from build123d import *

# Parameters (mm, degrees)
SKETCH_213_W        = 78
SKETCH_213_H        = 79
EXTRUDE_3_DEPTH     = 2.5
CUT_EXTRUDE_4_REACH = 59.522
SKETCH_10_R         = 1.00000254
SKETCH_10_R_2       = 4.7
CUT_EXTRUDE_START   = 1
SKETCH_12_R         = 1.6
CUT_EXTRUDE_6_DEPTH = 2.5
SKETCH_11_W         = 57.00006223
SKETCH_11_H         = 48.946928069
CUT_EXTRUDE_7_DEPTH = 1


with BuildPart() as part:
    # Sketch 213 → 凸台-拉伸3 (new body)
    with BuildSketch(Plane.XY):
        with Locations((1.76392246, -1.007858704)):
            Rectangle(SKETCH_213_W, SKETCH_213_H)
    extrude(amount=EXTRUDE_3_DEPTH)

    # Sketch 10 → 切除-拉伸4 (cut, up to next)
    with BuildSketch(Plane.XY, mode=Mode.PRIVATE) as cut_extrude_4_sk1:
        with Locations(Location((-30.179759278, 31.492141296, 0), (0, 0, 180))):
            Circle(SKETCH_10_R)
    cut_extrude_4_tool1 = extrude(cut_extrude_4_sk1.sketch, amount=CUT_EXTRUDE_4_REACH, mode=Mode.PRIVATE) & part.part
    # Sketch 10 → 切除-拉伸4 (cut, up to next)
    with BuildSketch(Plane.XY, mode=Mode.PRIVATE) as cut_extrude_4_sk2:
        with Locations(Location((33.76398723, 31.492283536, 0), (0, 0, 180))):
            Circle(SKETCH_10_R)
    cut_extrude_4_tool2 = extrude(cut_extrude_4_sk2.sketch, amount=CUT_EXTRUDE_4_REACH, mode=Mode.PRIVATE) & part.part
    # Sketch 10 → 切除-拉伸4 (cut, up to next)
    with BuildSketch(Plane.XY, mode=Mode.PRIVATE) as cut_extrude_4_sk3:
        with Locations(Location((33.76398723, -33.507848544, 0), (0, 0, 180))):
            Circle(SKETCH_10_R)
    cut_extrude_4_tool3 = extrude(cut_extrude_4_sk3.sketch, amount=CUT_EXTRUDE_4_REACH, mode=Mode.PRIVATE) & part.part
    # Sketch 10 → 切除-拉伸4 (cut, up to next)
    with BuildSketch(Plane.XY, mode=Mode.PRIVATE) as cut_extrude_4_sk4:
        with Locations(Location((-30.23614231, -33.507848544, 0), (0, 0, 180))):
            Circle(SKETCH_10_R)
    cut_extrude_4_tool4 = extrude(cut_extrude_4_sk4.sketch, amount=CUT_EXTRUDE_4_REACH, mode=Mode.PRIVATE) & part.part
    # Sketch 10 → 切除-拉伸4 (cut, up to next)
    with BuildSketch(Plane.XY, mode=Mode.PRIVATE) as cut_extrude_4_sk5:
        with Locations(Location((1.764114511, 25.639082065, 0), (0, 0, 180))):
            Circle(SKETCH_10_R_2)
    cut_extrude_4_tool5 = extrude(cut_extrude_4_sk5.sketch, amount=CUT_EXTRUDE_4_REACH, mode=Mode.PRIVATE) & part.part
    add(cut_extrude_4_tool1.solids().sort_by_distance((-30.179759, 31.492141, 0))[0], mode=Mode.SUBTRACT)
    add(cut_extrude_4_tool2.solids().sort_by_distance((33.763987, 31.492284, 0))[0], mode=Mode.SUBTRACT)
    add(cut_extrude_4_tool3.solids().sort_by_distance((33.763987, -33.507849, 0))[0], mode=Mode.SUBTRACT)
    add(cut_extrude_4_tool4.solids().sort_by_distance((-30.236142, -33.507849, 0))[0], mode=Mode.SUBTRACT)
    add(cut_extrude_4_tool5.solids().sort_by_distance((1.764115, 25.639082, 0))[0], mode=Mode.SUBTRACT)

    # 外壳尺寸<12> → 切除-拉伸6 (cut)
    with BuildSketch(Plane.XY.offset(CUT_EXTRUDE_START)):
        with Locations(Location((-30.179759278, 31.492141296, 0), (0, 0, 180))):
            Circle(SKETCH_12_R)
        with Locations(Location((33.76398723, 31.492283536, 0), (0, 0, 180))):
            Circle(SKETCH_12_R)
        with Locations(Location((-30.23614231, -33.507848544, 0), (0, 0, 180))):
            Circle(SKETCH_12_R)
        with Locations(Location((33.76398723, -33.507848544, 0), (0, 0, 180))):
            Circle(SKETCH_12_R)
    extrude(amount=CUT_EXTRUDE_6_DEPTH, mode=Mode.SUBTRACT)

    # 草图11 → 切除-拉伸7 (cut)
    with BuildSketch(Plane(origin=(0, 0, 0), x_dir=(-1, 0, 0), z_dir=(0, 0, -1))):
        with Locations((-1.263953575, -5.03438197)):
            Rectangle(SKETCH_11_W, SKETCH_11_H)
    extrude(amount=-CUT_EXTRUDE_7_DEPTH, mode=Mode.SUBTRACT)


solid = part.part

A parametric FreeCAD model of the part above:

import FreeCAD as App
import Part
import Sketcher
Q = App.Units.Quantity

doc = App.newDocument("Part")
params = doc.addObject("Spreadsheet::Sheet", "Params")
for row, (alias, value) in enumerate([
    ("sketch1_width", "78 mm"),
    ("sketch1_height", "79 mm"),
    ("pad1_length", "2.5 mm"),
    ("sketch6_diameter", "9.4 mm"),
    ("sketch7_diameter", "3.2 mm"),
    ("pocket6_length", "2.5 mm"),
    ("pocket7_length", "1 mm"),
], start=1):
    params.set(f"A{row}", alias)
    params.set(f"B{row}", "=" + value)
    params.setAlias(f"B{row}", alias)

body = doc.addObject("PartDesign::Body", "Body")

# Sketch on XY plane
sketch1 = body.newObject("Sketcher::SketchObject", "Sketch")
sketch1.AttachmentSupport = (doc.getObject("XY_Plane"), [""])
sketch1.MapMode = "FlatFace"
sketch1.addGeometry([
    Part.LineSegment(App.Vector(-37, 38, 0), App.Vector(-37, -41, 0)),
    Part.LineSegment(App.Vector(-37, -41, 0), App.Vector(41, -41, 0)),
    Part.LineSegment(App.Vector(41, -41, 0), App.Vector(41, 38, 0)),
    Part.LineSegment(App.Vector(41, 38, 0), App.Vector(-37, 38, 0)),
], False)
sketch1.addConstraint([
    Sketcher.Constraint("Coincident", 0, 2, 1, 1),
    Sketcher.Constraint("Coincident", 1, 2, 2, 1),
    Sketcher.Constraint("Coincident", 2, 2, 3, 1),
    Sketcher.Constraint("Coincident", 3, 2, 0, 1),
    Sketcher.Constraint("Vertical", 0),
    Sketcher.Constraint("Horizontal", 1),
    Sketcher.Constraint("Vertical", 2),
    Sketcher.Constraint("Horizontal", 3),
    Sketcher.Constraint("DistanceX", 1, 1, 1, 2, Q("78 mm")),
    Sketcher.Constraint("DistanceY", 0, 2, 0, 1, Q("79 mm")),
    Sketcher.Constraint("DistanceY", 0, 2, -1, 1, Q("40.507859 mm")),
    Sketcher.Constraint("DistanceX", 0, 2, -1, 1, Q("37.236078 mm")),
])
sketch1.setExpression("Constraints[8]", "Params.sketch1_width")
sketch1.setExpression("Constraints[9]", "Params.sketch1_height")
pad1 = body.newObject("PartDesign::Pad", "Pad")
pad1.Profile = sketch1
pad1.setExpression("Length", "Params.pad1_length")

# Sketch on XY plane
sketch2 = body.newObject("Sketcher::SketchObject", "Sketch001")
sketch2.AttachmentSupport = (doc.getObject("XY_Plane"), [""])
sketch2.MapMode = "FlatFace"
sketch2.addGeometry(Part.Circle(App.Vector(-30.2, 31.5, 0), App.Vector(0, 0, 1), 1), False)
sketch2.addConstraint([
    Sketcher.Constraint("Diameter", 0, Q("2.000005 mm")),
    Sketcher.Constraint("DistanceX", 0, 3, -1, 1, Q("30.179759 mm")),
    Sketcher.Constraint("DistanceY", -1, 1, 0, 3, Q("31.492141 mm")),
])
pocket1 = body.newObject("PartDesign::Pocket", "Pocket")
pocket1.Profile = sketch2
pocket1.Type = "UpToFirst"
pocket1.Reversed = True

# Sketch on XY plane
sketch3 = body.newObject("Sketcher::SketchObject", "Sketch002")
sketch3.AttachmentSupport = (doc.getObject("XY_Plane"), [""])
sketch3.MapMode = "FlatFace"
sketch3.addGeometry(Part.Circle(App.Vector(33.8, 31.5, 0), App.Vector(0, 0, 1), 1), False)
sketch3.addConstraint([
    Sketcher.Constraint("Diameter", 0, Q("2.000005 mm")),
    Sketcher.Constraint("DistanceX", -1, 1, 0, 3, Q("33.763987 mm")),
    Sketcher.Constraint("DistanceY", -1, 1, 0, 3, Q("31.492284 mm")),
])
pocket2 = body.newObject("PartDesign::Pocket", "Pocket001")
pocket2.Profile = sketch3
pocket2.Type = "UpToFirst"
pocket2.Reversed = True

# Sketch on XY plane
sketch4 = body.newObject("Sketcher::SketchObject", "Sketch003")
sketch4.AttachmentSupport = (doc.getObject("XY_Plane"), [""])
sketch4.MapMode = "FlatFace"
sketch4.addGeometry(Part.Circle(App.Vector(33.8, -33.5, 0), App.Vector(0, 0, 1), 1), False)
sketch4.addConstraint([
    Sketcher.Constraint("Diameter", 0, Q("2.000005 mm")),
    Sketcher.Constraint("DistanceY", 0, 3, -1, 1, Q("33.507849 mm")),
    Sketcher.Constraint("DistanceX", -1, 1, 0, 3, Q("33.763987 mm")),
])
pocket3 = body.newObject("PartDesign::Pocket", "Pocket002")
pocket3.Profile = sketch4
pocket3.Type = "UpToFirst"
pocket3.Reversed = True

# Sketch on XY plane
sketch5 = body.newObject("Sketcher::SketchObject", "Sketch004")
sketch5.AttachmentSupport = (doc.getObject("XY_Plane"), [""])
sketch5.MapMode = "FlatFace"
sketch5.addGeometry(Part.Circle(App.Vector(-30.2, -33.5, 0), App.Vector(0, 0, 1), 1), False)
sketch5.addConstraint([
    Sketcher.Constraint("Diameter", 0, Q("2.000005 mm")),
    Sketcher.Constraint("DistanceY", 0, 3, -1, 1, Q("33.507849 mm")),
    Sketcher.Constraint("DistanceX", 0, 3, -1, 1, Q("30.236142 mm")),
])
pocket4 = body.newObject("PartDesign::Pocket", "Pocket003")
pocket4.Profile = sketch5
pocket4.Type = "UpToFirst"
pocket4.Reversed = True

# Sketch on XY plane
sketch6 = body.newObject("Sketcher::SketchObject", "Sketch005")
sketch6.AttachmentSupport = (doc.getObject("XY_Plane"), [""])
sketch6.MapMode = "FlatFace"
sketch6.addGeometry(Part.Circle(App.Vector(1.8, 25.6, 0), App.Vector(0, 0, 1), 4.7), False)
sketch6.addConstraint([
    Sketcher.Constraint("Diameter", 0, Q("9.4 mm")),
    Sketcher.Constraint("DistanceX", -1, 1, 0, 3, Q("1.764115 mm")),
    Sketcher.Constraint("DistanceY", -1, 1, 0, 3, Q("25.639082 mm")),
])
sketch6.setExpression("Constraints[0]", "Params.sketch6_diameter")
pocket5 = body.newObject("PartDesign::Pocket", "Pocket004")
pocket5.Profile = sketch6
pocket5.Type = "UpToFirst"
pocket5.Reversed = True

# Sketch on XY plane
sketch7 = body.newObject("Sketcher::SketchObject", "Sketch006")
sketch7.AttachmentSupport = (doc.getObject("XY_Plane"), [""])
sketch7.MapMode = "FlatFace"
sketch7.AttachmentOffset = App.Placement(App.Vector(0, 0, 1), App.Rotation())
sketch7.addGeometry([
    Part.Circle(App.Vector(-30.2, 31.5, 0), App.Vector(0, 0, 1), 1.6),
    Part.Circle(App.Vector(33.8, 31.5, 0), App.Vector(0, 0, 1), 1.6),
    Part.Circle(App.Vector(-30.2, -33.5, 0), App.Vector(0, 0, 1), 1.6),
    Part.Circle(App.Vector(33.8, -33.5, 0), App.Vector(0, 0, 1), 1.6),
], False)
sketch7.addConstraint([
    Sketcher.Constraint("Equal", 0, 1),
    Sketcher.Constraint("Equal", 1, 2),
    Sketcher.Constraint("Equal", 2, 3),
    Sketcher.Constraint("Horizontal", 2, 3, 3, 3),
    Sketcher.Constraint("Vertical", 1, 3, 3, 3),
    Sketcher.Constraint("Diameter", 0, Q("3.2 mm")),
    Sketcher.Constraint("DistanceX", 0, 3, -1, 1, Q("30.179759 mm")),
    Sketcher.Constraint("DistanceY", -1, 1, 0, 3, Q("31.492141 mm")),
    Sketcher.Constraint("DistanceY", 2, 3, -1, 1, Q("33.507849 mm")),
    Sketcher.Constraint("DistanceX", 2, 3, 1, 3, Q("64.00013 mm")),
    Sketcher.Constraint("DistanceX", -1, 1, 1, 3, Q("33.763987 mm")),
    Sketcher.Constraint("DistanceY", -1, 1, 1, 3, Q("31.492284 mm")),
])
sketch7.setExpression("Constraints[5]", "Params.sketch7_diameter")
pocket6 = body.newObject("PartDesign::Pocket", "Pocket005")
pocket6.Profile = sketch7
pocket6.setExpression("Length", "Params.pocket6_length")
pocket6.Reversed = True

# Sketch on XY plane
sketch8 = body.newObject("Sketcher::SketchObject", "Sketch007")
sketch8.AttachmentSupport = (doc.getObject("XY_Plane"), [""])
sketch8.MapMode = "FlatFace"
sketch8.addGeometry([
    Part.LineSegment(App.Vector(30, 19, 0), App.Vector(30, -30, 0)),
    Part.LineSegment(App.Vector(30, -30, 0), App.Vector(-27, -30, 0)),
    Part.LineSegment(App.Vector(-27, -30, 0), App.Vector(-27, 19, 0)),
    Part.LineSegment(App.Vector(-27, 19, 0), App.Vector(30, 19, 0)),
], False)
sketch8.addConstraint([
    Sketcher.Constraint("Coincident", 0, 2, 1, 1),
    Sketcher.Constraint("Coincident", 1, 2, 2, 1),
    Sketcher.Constraint("Coincident", 2, 2, 3, 1),
    Sketcher.Constraint("Coincident", 3, 2, 0, 1),
    Sketcher.Constraint("Vertical", 0),
    Sketcher.Constraint("Horizontal", 1),
    Sketcher.Constraint("Vertical", 2),
    Sketcher.Constraint("Horizontal", 3),
    Sketcher.Constraint("DistanceY", 0, 2, 0, 1, Q("48.946928 mm")),
    Sketcher.Constraint("DistanceX", 1, 2, 1, 1, Q("57.000062 mm")),
    Sketcher.Constraint("DistanceX", -1, 1, 0, 2, Q("29.763985 mm")),
    Sketcher.Constraint("DistanceY", 0, 2, -1, 1, Q("29.507846 mm")),
])
pocket7 = body.newObject("PartDesign::Pocket", "Pocket006")
pocket7.Profile = sketch8
pocket7.setExpression("Length", "Params.pocket7_length")
pocket7.Reversed = True

doc.recompute()
